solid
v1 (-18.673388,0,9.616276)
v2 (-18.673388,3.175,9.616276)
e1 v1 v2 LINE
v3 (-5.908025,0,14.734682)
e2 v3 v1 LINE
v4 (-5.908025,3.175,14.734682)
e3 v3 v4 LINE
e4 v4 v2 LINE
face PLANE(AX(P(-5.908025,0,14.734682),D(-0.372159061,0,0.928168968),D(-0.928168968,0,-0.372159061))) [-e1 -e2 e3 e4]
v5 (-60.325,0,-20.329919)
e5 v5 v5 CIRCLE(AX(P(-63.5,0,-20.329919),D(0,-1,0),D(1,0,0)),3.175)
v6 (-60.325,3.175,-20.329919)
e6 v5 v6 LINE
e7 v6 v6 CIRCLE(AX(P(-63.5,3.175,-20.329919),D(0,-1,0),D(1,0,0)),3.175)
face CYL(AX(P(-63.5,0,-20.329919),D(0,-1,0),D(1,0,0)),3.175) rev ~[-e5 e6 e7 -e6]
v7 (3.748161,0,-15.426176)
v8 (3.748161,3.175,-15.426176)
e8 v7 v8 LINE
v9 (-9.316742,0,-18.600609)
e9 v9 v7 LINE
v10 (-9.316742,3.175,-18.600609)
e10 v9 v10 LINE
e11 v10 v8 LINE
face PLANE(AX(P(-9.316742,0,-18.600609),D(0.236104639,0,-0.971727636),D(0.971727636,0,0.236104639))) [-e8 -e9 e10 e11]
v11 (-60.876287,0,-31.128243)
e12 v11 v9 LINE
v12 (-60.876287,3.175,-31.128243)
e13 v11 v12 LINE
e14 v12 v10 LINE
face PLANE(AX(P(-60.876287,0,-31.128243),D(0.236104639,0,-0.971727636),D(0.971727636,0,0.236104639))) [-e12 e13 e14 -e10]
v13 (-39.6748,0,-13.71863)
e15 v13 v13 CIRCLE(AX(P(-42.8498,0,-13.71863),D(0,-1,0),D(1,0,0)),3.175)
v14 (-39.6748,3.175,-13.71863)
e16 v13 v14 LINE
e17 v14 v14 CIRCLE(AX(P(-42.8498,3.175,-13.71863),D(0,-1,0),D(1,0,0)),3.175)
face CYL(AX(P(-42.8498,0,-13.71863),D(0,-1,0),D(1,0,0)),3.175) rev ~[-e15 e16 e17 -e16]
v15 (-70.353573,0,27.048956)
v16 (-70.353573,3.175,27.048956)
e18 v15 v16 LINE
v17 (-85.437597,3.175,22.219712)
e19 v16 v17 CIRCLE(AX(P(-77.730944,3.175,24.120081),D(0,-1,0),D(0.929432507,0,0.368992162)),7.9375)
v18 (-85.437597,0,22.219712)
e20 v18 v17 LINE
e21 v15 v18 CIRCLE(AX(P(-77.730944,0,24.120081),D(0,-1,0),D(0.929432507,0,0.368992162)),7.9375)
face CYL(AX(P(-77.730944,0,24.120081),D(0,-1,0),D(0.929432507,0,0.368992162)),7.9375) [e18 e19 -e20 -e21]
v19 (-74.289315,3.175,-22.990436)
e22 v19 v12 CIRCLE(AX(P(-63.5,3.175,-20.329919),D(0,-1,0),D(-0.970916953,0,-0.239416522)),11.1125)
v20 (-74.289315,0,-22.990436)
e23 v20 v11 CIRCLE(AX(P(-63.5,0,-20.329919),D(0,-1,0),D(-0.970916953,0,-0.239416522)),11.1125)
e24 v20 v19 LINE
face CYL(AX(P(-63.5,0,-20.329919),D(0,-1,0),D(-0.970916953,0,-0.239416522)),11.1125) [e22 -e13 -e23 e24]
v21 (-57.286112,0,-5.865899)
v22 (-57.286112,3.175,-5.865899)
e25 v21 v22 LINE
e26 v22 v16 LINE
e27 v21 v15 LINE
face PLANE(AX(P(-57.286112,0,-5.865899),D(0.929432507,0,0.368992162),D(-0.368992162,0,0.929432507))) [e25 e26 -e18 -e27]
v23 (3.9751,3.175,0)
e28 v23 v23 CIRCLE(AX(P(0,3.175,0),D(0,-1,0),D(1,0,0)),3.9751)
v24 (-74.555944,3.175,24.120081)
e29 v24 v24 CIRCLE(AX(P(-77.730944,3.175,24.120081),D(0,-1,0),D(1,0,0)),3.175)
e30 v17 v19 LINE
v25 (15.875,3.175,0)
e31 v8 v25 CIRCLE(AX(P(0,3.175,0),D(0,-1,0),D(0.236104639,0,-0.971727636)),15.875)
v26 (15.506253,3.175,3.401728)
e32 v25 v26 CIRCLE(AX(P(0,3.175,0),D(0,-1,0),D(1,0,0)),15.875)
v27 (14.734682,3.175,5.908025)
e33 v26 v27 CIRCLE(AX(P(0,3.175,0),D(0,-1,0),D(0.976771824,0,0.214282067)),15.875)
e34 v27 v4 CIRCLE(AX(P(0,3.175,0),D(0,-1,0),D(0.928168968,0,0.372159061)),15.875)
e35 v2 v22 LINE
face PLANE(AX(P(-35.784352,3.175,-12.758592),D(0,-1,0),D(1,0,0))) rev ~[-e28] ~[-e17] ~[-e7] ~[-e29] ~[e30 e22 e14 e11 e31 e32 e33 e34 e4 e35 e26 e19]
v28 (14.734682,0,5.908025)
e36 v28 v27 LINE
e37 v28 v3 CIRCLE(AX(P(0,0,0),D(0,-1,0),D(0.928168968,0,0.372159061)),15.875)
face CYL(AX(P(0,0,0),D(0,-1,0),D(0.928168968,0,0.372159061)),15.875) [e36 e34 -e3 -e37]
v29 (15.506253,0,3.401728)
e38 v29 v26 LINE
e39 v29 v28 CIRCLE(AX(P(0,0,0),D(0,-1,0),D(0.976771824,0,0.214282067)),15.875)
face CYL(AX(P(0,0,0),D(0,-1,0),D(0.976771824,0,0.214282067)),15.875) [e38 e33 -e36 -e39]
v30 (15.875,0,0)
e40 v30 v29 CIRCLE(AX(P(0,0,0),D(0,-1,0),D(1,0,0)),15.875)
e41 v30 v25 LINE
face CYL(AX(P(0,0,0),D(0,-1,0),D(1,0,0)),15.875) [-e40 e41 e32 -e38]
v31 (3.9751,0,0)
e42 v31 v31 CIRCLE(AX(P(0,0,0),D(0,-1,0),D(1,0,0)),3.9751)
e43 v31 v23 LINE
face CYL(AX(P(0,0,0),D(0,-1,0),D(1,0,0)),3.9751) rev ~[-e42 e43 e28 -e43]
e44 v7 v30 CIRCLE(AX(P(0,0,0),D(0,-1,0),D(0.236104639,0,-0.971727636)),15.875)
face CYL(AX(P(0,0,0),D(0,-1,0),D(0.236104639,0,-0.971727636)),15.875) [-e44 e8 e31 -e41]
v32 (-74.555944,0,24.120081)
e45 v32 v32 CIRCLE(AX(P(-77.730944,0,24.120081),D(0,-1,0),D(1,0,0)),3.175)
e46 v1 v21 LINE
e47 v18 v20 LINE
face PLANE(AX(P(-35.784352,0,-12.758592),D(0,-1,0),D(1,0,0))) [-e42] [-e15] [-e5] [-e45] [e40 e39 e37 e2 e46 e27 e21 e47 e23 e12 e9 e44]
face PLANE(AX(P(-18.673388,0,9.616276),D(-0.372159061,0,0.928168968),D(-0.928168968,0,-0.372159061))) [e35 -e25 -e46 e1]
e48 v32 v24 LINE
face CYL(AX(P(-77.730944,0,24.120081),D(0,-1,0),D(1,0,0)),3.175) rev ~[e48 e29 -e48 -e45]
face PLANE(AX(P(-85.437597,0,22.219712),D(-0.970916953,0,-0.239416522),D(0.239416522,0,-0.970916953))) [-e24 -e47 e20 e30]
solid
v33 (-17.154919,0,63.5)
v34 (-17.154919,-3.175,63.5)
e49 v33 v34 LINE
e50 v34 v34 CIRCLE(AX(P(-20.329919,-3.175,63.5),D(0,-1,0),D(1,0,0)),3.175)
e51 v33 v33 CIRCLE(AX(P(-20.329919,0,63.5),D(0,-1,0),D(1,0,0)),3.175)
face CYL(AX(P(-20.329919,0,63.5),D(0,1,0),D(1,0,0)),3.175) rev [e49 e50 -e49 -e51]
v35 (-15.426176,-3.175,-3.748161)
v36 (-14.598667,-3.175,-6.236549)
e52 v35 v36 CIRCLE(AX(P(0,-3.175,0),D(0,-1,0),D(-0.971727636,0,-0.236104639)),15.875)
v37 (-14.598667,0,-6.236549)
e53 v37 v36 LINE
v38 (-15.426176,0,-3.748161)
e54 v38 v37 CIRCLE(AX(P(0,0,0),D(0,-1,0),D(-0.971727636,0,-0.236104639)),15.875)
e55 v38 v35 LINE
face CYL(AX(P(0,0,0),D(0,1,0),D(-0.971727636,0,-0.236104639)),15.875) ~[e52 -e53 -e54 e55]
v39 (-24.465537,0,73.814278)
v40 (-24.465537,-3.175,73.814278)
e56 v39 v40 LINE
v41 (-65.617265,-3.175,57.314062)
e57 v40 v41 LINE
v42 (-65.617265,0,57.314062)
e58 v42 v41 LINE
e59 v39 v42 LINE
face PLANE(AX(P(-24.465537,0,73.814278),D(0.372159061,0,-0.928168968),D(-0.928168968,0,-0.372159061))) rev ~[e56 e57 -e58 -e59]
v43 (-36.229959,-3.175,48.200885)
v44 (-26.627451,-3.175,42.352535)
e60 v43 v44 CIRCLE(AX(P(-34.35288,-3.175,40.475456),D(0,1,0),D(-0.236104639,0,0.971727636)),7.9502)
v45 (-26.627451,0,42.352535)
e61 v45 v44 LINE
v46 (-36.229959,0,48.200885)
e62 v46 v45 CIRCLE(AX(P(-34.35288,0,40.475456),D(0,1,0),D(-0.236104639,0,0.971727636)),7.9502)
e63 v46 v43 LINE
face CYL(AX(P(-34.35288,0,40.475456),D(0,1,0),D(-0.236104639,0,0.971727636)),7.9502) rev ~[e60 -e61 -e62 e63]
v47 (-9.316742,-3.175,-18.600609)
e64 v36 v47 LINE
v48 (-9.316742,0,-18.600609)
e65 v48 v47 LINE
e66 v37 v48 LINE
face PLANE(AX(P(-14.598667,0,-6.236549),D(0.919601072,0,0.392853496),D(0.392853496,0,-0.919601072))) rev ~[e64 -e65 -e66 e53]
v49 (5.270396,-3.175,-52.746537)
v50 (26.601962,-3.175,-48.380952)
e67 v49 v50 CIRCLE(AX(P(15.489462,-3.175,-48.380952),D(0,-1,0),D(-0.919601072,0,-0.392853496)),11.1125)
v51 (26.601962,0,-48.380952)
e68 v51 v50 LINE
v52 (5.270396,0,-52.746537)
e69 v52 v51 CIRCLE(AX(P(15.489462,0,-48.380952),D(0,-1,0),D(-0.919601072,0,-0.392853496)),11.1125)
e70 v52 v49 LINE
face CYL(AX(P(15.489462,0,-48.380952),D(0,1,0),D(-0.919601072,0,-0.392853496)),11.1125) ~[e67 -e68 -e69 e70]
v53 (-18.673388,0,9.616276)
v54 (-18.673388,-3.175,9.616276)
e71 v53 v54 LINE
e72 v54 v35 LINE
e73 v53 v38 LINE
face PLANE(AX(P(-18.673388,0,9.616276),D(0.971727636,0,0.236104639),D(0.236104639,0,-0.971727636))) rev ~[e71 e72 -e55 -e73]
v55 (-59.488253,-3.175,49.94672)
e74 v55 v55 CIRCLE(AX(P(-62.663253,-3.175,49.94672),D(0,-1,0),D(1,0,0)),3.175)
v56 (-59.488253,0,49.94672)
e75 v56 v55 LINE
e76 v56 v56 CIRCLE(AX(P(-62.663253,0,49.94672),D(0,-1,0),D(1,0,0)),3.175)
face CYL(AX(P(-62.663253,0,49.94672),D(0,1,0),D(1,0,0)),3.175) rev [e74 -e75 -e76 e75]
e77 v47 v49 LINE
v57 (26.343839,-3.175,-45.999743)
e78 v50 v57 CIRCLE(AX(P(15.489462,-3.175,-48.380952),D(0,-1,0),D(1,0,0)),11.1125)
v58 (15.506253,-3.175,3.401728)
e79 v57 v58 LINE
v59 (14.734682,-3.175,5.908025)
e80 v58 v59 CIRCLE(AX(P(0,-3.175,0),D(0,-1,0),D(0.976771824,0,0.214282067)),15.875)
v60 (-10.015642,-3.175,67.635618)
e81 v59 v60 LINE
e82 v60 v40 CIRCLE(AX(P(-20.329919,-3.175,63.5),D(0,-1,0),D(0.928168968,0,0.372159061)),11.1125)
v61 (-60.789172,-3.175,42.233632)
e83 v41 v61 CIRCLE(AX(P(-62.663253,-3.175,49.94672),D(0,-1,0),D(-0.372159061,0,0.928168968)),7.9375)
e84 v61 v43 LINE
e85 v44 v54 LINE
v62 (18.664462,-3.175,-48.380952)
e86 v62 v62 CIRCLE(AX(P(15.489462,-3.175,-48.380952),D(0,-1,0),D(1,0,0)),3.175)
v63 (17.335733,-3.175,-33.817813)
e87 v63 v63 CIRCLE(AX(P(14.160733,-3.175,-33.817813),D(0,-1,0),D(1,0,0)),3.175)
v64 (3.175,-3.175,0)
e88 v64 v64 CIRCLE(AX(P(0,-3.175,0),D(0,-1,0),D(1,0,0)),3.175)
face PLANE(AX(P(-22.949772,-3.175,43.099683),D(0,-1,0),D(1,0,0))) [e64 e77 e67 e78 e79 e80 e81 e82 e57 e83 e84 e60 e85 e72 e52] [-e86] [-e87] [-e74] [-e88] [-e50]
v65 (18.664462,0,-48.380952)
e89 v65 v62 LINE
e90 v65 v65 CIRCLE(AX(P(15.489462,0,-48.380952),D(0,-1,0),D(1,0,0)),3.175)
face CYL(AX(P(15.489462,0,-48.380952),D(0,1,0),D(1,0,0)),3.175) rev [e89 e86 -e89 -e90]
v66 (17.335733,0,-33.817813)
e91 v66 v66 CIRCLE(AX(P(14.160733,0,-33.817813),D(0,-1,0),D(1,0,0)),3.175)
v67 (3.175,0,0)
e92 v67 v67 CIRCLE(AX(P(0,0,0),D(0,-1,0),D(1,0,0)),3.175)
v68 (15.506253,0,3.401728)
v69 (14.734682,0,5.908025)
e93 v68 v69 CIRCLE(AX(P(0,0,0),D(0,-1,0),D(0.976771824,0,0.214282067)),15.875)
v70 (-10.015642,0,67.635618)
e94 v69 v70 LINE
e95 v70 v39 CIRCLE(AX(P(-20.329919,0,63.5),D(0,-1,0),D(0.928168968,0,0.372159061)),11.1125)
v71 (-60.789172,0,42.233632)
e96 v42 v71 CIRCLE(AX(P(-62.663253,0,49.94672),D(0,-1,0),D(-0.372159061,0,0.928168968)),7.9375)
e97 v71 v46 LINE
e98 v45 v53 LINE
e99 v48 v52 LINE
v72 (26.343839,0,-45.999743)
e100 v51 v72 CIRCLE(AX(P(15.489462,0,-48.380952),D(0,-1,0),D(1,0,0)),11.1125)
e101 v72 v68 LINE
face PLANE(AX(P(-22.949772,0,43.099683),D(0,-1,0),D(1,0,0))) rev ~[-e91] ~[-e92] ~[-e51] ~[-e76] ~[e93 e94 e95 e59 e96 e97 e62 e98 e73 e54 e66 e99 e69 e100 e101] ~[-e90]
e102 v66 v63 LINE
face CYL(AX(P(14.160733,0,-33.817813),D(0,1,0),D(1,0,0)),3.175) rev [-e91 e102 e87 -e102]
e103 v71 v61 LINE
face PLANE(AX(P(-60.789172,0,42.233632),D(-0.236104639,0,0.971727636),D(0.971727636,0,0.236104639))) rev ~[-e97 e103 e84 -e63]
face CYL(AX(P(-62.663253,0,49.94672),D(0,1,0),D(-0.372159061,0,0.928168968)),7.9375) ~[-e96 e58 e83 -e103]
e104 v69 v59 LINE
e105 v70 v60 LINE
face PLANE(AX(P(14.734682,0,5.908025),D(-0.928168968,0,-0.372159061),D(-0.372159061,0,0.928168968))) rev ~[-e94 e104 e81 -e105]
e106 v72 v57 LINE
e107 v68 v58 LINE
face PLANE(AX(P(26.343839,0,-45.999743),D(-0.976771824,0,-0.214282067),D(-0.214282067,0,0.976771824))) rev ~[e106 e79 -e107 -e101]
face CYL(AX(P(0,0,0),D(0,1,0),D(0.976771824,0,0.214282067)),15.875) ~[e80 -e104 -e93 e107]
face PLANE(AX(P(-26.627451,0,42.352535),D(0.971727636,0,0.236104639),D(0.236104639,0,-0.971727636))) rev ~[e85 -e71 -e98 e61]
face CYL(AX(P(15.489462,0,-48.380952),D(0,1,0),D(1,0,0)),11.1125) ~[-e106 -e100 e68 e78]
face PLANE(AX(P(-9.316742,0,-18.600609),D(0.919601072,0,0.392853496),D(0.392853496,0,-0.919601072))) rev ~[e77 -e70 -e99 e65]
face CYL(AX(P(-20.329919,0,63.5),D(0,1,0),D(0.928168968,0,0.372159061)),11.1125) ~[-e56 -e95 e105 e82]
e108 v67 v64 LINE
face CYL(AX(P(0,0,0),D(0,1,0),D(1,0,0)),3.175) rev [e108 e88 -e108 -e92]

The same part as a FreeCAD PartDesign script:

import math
import FreeCAD as App
import Part
import Sketcher
from FreeCAD import Vector
Q = App.Units.Quantity

doc = App.newDocument("Part")
params = doc.addObject("Spreadsheet::Sheet", "Params")
for row, (alias, value) in enumerate([
    ("sketch1_diameter", "0.25 in"),
    ("sketch1_radius", "0.3125 in"),
    ("sketch1_radius2", "0.313 in"),
    ("sketch1_radius3", "0.625 in"),
    ("sketch1_radius4", "0.4375 in"),
    ("pad1_length", "0.125 in"),
    ("sketch2_diameter", "0.25 in"),
    ("sketch2_diameter2", "0.313 in"),
    ("sketch2_radius", "0.3125 in"),
    ("sketch2_radius2", "0.4375 in"),
    ("sketch2_radius3", "0.625 in"),
    ("pad2_length", "0.125 in"),
], start=1):
    params.set(f"A{row}", alias)
    params.set(f"B{row}", "=" + value)
    params.setAlias(f"B{row}", alias)

body = doc.addObject("PartDesign::Body", "Body")

# Sketch on XZ plane
sketch1 = body.newObject("Sketcher::SketchObject", "Sketch")
sketch1.AttachmentSupport = (doc.getObject("XZ_Plane"), [""])
sketch1.MapMode = "FlatFace"
sketch1.addGeometry([
    Part.LineSegment(Vector(-24.465537, 73.814278, 0), Vector(-65.617265, 57.314062, 0)),  # 0
    Part.ArcOfCircle(Part.Circle(Vector(-62.663253, 49.94672, 0), Vector(0, 0, 1), 7.9375), math.radians(111.848834), math.radians(283.656746)),  # 1
    Part.LineSegment(Vector(-60.789172, 42.233632, 0), Vector(-36.229959, 48.200885, 0)),  # 2
    Part.ArcOfCircle(Part.Circle(Vector(-34.35288, 40.475456, 0), Vector(0, 0, 1), 7.9502), math.radians(13.656746), math.radians(103.656746)),  # 3
    Part.LineSegment(Vector(-26.627451, 42.352535, 0), Vector(-18.673388, 9.616276, 0)),  # 4
    Part.LineSegment(Vector(-18.673388, 9.616276, 0), Vector(-15.426176, -3.748161, 0)),  # 5
    Part.ArcOfCircle(Part.Circle(Vector(0, 0, 0), Vector(0, 0, 1), 15.875), math.radians(-166.343254), math.radians(-156.867831)),  # 6
    Part.LineSegment(Vector(-14.598667, -6.236549, 0), Vector(-9.316742, -18.600609, 0)),  # 7
    Part.LineSegment(Vector(-9.316742, -18.600609, 0), Vector(5.270396, -52.746537, 0)),  # 8
    Part.ArcOfCircle(Part.Circle(Vector(15.489462, -48.380952, 0), Vector(0, 0, 1), 11.1125), math.radians(-156.867831), math.radians(0)),  # 9
    Part.ArcOfCircle(Part.Circle(Vector(15.489462, -48.380952, 0), Vector(0, 0, 1), 11.1125), math.radians(0), math.radians(12.373411)),  # 10
    Part.LineSegment(Vector(26.343839, -45.999743, 0), Vector(15.506253, 3.401728, 0)),  # 11
    Part.ArcOfCircle(Part.Circle(Vector(0, 0, 0), Vector(0, 0, 1), 15.875), math.radians(12.373411), math.radians(21.848834)),  # 12
    Part.LineSegment(Vector(14.734682, 5.908025, 0), Vector(-10.015642, 67.635618, 0)),  # 13
    Part.ArcOfCircle(Part.Circle(Vector(-20.329919, 63.5, 0), Vector(0, 0, 1), 11.1125), math.radians(21.848834), math.radians(111.848834)),  # 14
    Part.Circle(Vector(15.489462, -48.380952, 0), Vector(0, 0, 1), 3.175),  # 15
    Part.Circle(Vector(14.160733, -33.817813, 0), Vector(0, 0, 1), 3.175),  # 16
    Part.Circle(Vector(0, 0, 0), Vector(0, 0, 1), 3.175),  # 17
    Part.Circle(Vector(-62.663253, 49.94672, 0), Vector(0, 0, 1), 3.175),  # 18
    Part.Circle(Vector(-20.329919, 63.5, 0), Vector(0, 0, 1), 3.175),  # 19
], False)
sketch1.addConstraint([
    Sketcher.Constraint("Tangent", 0, 2, 1, 1),
    Sketcher.Constraint("Tangent", 1, 2, 2, 1),
    Sketcher.Constraint("Tangent", 2, 2, 3, 2),
    Sketcher.Constraint("Tangent", 3, 1, 4, 1),
    Sketcher.Constraint("Coincident", 4, 2, 5, 1),
    Sketcher.Constraint("Tangent", 5, 2, 6, 1),
    Sketcher.Constraint("Tangent", 6, 2, 7, 1),
    Sketcher.Constraint("Coincident", 7, 2, 8, 1),
    Sketcher.Constraint("Tangent", 8, 2, 9, 1),
    Sketcher.Constraint("Tangent", 9, 2, 10, 1),
    Sketcher.Constraint("Tangent", 10, 2, 11, 1),
    Sketcher.Constraint("Tangent", 11, 2, 12, 1),
    Sketcher.Constraint("Tangent", 12, 2, 13, 1),
    Sketcher.Constraint("Tangent", 13, 2, 14, 1),
    Sketcher.Constraint("Tangent", 14, 2, 0, 1),
    Sketcher.Constraint("Coincident", 6, 3, -1, 1),
    Sketcher.Constraint("Coincident", 12, 3, -1, 1),
    Sketcher.Constraint("Coincident", 17, 3, -1, 1),
    Sketcher.Constraint("Coincident", 15, 3, 9, 3),
    Sketcher.Constraint("Coincident", 18, 3, 1, 3),
    Sketcher.Constraint("Coincident", 19, 3, 14, 3),
    Sketcher.Constraint("Equal", 9, 10),
    Sketcher.Constraint("Equal", 6, 12),
    Sketcher.Constraint("Equal", 10, 14),
    Sketcher.Constraint("Equal", 15, 16),
    Sketcher.Constraint("Equal", 16, 17),
    Sketcher.Constraint("Equal", 17, 18),
    Sketcher.Constraint("Equal", 18, 19),
    Sketcher.Constraint("Perpendicular", 2, 4),
    Sketcher.Constraint("Parallel", 4, 5),
    Sketcher.Constraint("Parallel", 7, 8),
    Sketcher.Constraint("Perpendicular", 0, 13),
    Sketcher.Constraint("Horizontal", 15, 3, 9, 2),
    Sketcher.Constraint("Diameter", 15, Q("0.25 in")),
    Sketcher.Constraint("Radius", 1, Q("0.3125 in")),
    Sketcher.Constraint("Radius", 3, Q("0.313 in")),
    Sketcher.Constraint("Radius", 6, Q("0.625 in")),
    Sketcher.Constraint("Radius", 9, Q("0.4375 in")),
    Sketcher.Constraint("DistanceY", -1, 1, 14, 3, Q("2.5 in")),
    Sketcher.Constraint("Distance", 4, 33.688718),
    Sketcher.Constraint("Distance", 8, 37.13124),
    Sketcher.Constraint("DistanceY", -1, 1, 1, 3, 49.94672),
    Sketcher.Constraint("DistanceX", 3, 3, -1, 1, 34.35288),
    Sketcher.Constraint("DistanceX", 14, 3, -1, 1, 20.329919),
    Sketcher.Constraint("DistanceY", 6, 2, -1, 1, 6.236549),
    Sketcher.Constraint("DistanceX", 7, 2, -1, 1, 9.316742),
    Sketcher.Constraint("DistanceX", 16, 3, 10, 3, 1.328729),
    Sketcher.Constraint("DistanceY", 10, 3, 16, 3, 14.563139),
])
sketch1.setExpression("Constraints[33]", "Params.sketch1_diameter")
sketch1.setExpression("Constraints[34]", "Params.sketch1_radius")
sketch1.setExpression("Constraints[35]", "Params.sketch1_radius2")
sketch1.setExpression("Constraints[36]", "Params.sketch1_radius3")
sketch1.setExpression("Constraints[37]", "Params.sketch1_radius4")
pad1 = body.newObject("PartDesign::Pad", "Pad")
pad1.Profile = sketch1
pad1.setExpression("Length", "Params.pad1_length")
body2 = doc.addObject("PartDesign::Body", "Body001")

# Sketch on XZ plane
sketch2 = body2.newObject("Sketcher::SketchObject", "Sketch001")
sketch2.AttachmentSupport = (doc.getObject("XZ_Plane001"), [""])
sketch2.MapMode = "FlatFace"
sketch2.addGeometry([
    Part.LineSegment(Vector(-18.673388, 9.616276, 0), Vector(-57.286112, -5.865899, 0)),  # 0
    Part.LineSegment(Vector(-57.286112, -5.865899, 0), Vector(-70.353573, 27.048956, 0)),  # 1
    Part.ArcOfCircle(Part.Circle(Vector(-77.730944, 24.120081, 0), Vector(0, 0, 1), 7.9375), math.radians(21.653475), math.radians(193.852106)),  # 2
    Part.LineSegment(Vector(-85.437597, 22.219712, 0), Vector(-74.289315, -22.990436, 0)),  # 3
    Part.ArcOfCircle(Part.Circle(Vector(-63.5, -20.329919, 0), Vector(0, 0, 1), 11.1125), math.radians(-166.147894), math.radians(-76.343254)),  # 4
    Part.LineSegment(Vector(-60.876287, -31.128243, 0), Vector(-9.316742, -18.600609, 0)),  # 5
    Part.LineSegment(Vector(-9.316742, -18.600609, 0), Vector(3.748161, -15.426176, 0)),  # 6
    Part.ArcOfCircle(Part.Circle(Vector(0, 0, 0), Vector(0, 0, 1), 15.875), math.radians(-76.343254), math.radians(0)),  # 7
    Part.ArcOfCircle(Part.Circle(Vector(0, 0, 0), Vector(0, 0, 1), 15.875), math.radians(0), math.radians(12.373411)),  # 8
    Part.ArcOfCircle(Part.Circle(Vector(0, 0, 0), Vector(0, 0, 1), 15.875), math.radians(12.373411), math.radians(21.848834)),  # 9
    Part.ArcOfCircle(Part.Circle(Vector(0, 0, 0), Vector(0, 0, 1), 15.875), math.radians(21.848834), math.radians(111.848834)),  # 10
    Part.LineSegment(Vector(-5.908025, 14.734682, 0), Vector(-18.673388, 9.616276, 0)),  # 11
    Part.Circle(Vector(-63.5, -20.329919, 0), Vector(0, 0, 1), 3.175),  # 12
    Part.Circle(Vector(-42.8498, -13.71863, 0), Vector(0, 0, 1), 3.175),  # 13
    Part.Circle(Vector(0, 0, 0), Vector(0, 0, 1), 3.9751),  # 14
    Part.Circle(Vector(-77.730944, 24.120081, 0), Vector(0, 0, 1), 3.175),  # 15
], False)
sketch2.addConstraint([
    Sketcher.Constraint("Coincident", 0, 2, 1, 1),
    Sketcher.Constraint("Tangent", 1, 2, 2, 1),
    Sketcher.Constraint("Tangent", 2, 2, 3, 1),
    Sketcher.Constraint("Tangent", 3, 2, 4, 1),
    Sketcher.Constraint("Tangent", 4, 2, 5, 1),
    Sketcher.Constraint("Coincident", 5, 2, 6, 1),
    Sketcher.Constraint("Tangent", 6, 2, 7, 1),
    Sketcher.Constraint("Tangent", 7, 2, 8, 1),
    Sketcher.Constraint("Tangent", 8, 2, 9, 1),
    Sketcher.Constraint("Tangent", 9, 2, 10, 1),
    Sketcher.Constraint("Tangent", 10, 2, 11, 1),
    Sketcher.Constraint("Coincident", 11, 2, 0, 1),
    Sketcher.Constraint("Coincident", 7, 3, -1, 1),
    Sketcher.Constraint("Coincident", 9, 3, -1, 1),
    Sketcher.Constraint("Coincident", 14, 3, -1, 1),
    Sketcher.Constraint("Coincident", 12, 3, 4, 3),
    Sketcher.Constraint("Coincident", 15, 3, 2, 3),
    Sketcher.Constraint("Equal", 9, 10),
    Sketcher.Constraint("Equal", 12, 13),
    Sketcher.Constraint("Equal", 13, 15),
    Sketcher.Constraint("PointOnObject", 7, 2, -1),
    Sketcher.Constraint("Parallel", 5, 6),
    Sketcher.Constraint("Parallel", 0, 11),
    Sketcher.Constraint("Diameter", 12, Q("0.25 in")),
    Sketcher.Constraint("Diameter", 14, Q("0.313 in")),
    Sketcher.Constraint("Radius", 2, Q("0.3125 in")),
    Sketcher.Constraint("Radius", 4, Q("0.4375 in")),
    Sketcher.Constraint("Radius", 7, Q("0.625 in")),
    Sketcher.Constraint("DistanceX", 4, 3, -1, 1, Q("2.5 in")),
    Sketcher.Constraint("DistanceY", 4, 3, 2, 3, Q("1.75 in")),
    Sketcher.Constraint("DistanceX", 13, 3, -1, 1, Q("1.687 in")),
    Sketcher.Constraint("DistanceY", 0, 2, -1, 1, 5.865899),
    Sketcher.Constraint("Distance", 3, 46.564382),
    Sketcher.Constraint("DistanceY", -1, 1, 2, 3, 24.120081),
    Sketcher.Constraint("DistanceY", 13, 3, -1, 1, 13.71863),
    Sketcher.Constraint("DistanceX", 0, 2, -1, 1, 57.286112),
    Sketcher.Constraint("DistanceX", 5, 2, -1, 1, 9.316742),
    Sketcher.Constraint("DistanceX", 11, 2, -1, 1, 18.673388),
    Sketcher.Constraint("DistanceX", 9, 2, 8, 2, 0.77157),
    Sketcher.Constraint("DistanceX", -1, 1, 8, 2, 15.506253),
])
sketch2.setExpression("Constraints[23]", "Params.sketch2_diameter")
sketch2.setExpression("Constraints[24]", "Params.sketch2_diameter2")
sketch2.setExpression("Constraints[25]", "Params.sketch2_radius")
sketch2.setExpression("Constraints[26]", "Params.sketch2_radius2")
sketch2.setExpression("Constraints[27]", "Params.sketch2_radius3")
pad2 = body2.newObject("PartDesign::Pad", "Pad001")
pad2.Profile = sketch2
pad2.setExpression("Length", "Params.pad2_length")
pad2.Reversed = True

doc.recompute()
